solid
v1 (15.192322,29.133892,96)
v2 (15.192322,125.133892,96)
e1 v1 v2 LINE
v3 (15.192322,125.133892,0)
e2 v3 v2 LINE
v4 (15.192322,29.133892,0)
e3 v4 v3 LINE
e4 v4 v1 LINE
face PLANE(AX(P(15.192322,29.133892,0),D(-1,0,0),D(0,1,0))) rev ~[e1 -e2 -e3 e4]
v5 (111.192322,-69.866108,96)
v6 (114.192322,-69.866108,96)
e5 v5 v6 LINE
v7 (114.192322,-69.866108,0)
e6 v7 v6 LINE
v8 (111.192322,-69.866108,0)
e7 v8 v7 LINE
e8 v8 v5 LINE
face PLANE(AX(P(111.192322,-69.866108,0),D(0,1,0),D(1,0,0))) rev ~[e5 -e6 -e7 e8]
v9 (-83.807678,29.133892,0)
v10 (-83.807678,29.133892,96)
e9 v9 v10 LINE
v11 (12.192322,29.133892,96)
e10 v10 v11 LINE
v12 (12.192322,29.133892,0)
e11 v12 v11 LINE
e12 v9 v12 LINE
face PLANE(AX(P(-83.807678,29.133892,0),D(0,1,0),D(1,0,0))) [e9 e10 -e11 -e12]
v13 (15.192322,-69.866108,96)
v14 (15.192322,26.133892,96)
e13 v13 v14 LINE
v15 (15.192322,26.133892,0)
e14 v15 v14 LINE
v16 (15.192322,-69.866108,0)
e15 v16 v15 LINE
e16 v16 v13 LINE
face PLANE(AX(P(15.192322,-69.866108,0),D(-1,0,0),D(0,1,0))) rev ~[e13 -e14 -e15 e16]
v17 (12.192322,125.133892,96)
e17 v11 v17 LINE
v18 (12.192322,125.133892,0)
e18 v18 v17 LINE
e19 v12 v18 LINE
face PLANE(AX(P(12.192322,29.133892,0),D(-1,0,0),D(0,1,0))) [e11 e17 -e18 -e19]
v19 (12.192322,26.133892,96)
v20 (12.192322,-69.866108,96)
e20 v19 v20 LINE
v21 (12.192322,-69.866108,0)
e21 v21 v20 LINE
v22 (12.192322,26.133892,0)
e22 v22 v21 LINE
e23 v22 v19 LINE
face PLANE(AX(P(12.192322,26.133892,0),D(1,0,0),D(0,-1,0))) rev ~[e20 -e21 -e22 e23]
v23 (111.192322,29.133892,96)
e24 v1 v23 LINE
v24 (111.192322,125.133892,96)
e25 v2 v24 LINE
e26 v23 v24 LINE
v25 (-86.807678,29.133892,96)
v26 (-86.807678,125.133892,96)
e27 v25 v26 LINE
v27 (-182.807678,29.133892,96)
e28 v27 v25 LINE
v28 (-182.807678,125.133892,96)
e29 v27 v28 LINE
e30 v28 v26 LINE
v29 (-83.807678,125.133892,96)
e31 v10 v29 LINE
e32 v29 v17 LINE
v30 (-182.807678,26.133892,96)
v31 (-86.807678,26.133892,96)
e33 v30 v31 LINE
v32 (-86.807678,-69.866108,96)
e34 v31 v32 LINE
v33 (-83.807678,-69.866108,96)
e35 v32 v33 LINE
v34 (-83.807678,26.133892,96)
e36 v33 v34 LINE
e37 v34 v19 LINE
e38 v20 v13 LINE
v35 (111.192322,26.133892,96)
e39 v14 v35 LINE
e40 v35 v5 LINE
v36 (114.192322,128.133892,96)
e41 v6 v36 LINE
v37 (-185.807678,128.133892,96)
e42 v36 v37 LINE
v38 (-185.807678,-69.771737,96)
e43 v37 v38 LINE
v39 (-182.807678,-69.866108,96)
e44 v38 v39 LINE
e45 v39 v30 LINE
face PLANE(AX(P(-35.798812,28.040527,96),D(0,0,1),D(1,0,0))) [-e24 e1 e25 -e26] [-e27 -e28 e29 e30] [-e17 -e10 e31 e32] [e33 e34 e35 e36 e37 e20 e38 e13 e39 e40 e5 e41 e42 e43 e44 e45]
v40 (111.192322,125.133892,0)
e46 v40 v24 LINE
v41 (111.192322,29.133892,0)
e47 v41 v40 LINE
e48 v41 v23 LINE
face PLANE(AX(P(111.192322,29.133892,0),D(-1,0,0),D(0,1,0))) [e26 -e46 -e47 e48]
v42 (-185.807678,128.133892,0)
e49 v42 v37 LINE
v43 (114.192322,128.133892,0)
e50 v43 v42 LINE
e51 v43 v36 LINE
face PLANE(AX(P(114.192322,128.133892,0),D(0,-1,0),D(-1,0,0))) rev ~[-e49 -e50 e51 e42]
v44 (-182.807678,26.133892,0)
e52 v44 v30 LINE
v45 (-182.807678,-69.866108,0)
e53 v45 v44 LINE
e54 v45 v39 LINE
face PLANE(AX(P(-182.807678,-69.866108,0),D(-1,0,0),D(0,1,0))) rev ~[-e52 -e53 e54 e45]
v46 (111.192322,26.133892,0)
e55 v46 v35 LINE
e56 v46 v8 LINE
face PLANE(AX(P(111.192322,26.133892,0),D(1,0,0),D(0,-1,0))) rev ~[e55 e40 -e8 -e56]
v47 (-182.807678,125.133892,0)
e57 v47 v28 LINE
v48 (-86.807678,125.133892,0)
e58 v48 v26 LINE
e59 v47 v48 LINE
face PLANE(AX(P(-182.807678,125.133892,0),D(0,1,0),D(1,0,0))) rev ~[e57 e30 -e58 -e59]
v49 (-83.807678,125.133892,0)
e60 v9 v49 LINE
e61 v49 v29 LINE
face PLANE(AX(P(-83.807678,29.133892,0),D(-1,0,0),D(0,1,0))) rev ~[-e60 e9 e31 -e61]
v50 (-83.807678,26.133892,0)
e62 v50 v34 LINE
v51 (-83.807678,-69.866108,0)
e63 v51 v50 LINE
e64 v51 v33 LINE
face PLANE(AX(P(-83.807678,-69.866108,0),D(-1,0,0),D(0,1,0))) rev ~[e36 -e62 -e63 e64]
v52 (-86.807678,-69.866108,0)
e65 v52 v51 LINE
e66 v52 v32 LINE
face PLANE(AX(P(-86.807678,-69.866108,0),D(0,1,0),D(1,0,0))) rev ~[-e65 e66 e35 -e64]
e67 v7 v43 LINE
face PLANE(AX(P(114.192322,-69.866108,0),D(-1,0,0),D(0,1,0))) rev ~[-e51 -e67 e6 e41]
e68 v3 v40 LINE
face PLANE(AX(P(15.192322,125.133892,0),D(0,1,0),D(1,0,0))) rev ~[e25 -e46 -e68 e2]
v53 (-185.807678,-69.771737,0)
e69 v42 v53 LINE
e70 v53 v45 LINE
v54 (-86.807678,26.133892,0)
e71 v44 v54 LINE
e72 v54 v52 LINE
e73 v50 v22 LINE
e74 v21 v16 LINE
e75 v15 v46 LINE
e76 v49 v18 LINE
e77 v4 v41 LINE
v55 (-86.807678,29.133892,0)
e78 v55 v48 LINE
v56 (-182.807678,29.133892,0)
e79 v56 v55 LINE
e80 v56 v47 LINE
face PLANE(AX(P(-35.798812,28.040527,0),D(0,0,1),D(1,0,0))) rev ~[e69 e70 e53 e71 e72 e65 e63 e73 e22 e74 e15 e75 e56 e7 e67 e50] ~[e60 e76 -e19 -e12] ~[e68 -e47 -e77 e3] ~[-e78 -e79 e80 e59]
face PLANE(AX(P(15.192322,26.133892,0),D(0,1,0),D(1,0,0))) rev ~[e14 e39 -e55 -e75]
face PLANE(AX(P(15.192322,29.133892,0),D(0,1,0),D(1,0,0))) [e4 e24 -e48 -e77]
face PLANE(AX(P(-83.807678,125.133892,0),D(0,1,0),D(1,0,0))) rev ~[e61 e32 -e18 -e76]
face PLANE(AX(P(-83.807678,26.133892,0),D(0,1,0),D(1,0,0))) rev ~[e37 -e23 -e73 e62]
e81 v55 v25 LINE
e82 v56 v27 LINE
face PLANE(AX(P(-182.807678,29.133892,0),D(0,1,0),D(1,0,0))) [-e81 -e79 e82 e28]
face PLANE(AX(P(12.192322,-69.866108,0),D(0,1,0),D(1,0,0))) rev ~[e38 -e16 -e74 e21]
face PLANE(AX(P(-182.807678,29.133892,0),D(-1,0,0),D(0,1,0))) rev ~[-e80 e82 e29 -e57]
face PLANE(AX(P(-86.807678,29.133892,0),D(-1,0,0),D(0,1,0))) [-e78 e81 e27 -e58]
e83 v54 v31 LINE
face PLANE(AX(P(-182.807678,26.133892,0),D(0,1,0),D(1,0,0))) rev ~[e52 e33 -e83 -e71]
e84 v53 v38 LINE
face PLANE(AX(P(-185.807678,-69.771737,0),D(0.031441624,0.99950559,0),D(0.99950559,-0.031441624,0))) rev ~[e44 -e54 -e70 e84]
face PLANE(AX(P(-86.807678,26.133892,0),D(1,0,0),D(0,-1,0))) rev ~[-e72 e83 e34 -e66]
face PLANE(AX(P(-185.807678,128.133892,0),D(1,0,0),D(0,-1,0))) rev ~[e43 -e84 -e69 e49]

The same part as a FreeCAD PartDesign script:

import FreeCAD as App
import Part
import Sketcher
Q = App.Units.Quantity

doc = App.newDocument("Part")
params = doc.addObject("Spreadsheet::Sheet", "Params")
for row, (alias, value) in enumerate([
    ("sketch1_width", "96 mm"),
    ("sketch1_width2", "3 mm"),
    ("sketch1_width3", "300 mm"),
    ("sketch1_height", "198 mm"),
    ("pad1_length", "96 mm"),
], start=1):
    params.set(f"A{row}", alias)
    params.set(f"B{row}", "=" + value)
    params.setAlias(f"B{row}", alias)

body = doc.addObject("PartDesign::Body", "Body")

sketch1 = body.newObject("Sketcher::SketchObject", "Sketch")
sketch1.AttachmentSupport = (doc.getObject("XY_Plane"), [""])
sketch1.MapMode = "FlatFace"
sketch1.addGeometry(Part.LineSegment(App.Vector(-182.807678, -69.866108, 0), App.Vector(-182.807678, 26.133892, 0)), False)
sketch1.addGeometry(Part.LineSegment(App.Vector(-182.807678, 26.133892, 0), App.Vector(-86.807678, 26.133892, 0)), False)
sketch1.addGeometry(Part.LineSegment(App.Vector(-86.807678, 26.133892, 0), App.Vector(-86.807678, -69.866108, 0)), False)
sketch1.addGeometry(Part.LineSegment(App.Vector(-86.807678, -69.866108, 0), App.Vector(-83.807678, -69.866108, 0)), False)
sketch1.addGeometry(Part.LineSegment(App.Vector(-83.807678, -69.866108, 0), App.Vector(-83.807678, 26.133892, 0)), False)
sketch1.addGeometry(Part.LineSegment(App.Vector(-83.807678, 26.133892, 0), App.Vector(12.192322, 26.133892, 0)), False)
sketch1.addGeometry(Part.LineSegment(App.Vector(12.192322, 26.133892, 0), App.Vector(12.192322, -69.866108, 0)), False)
sketch1.addGeometry(Part.LineSegment(App.Vector(12.192322, -69.866108, 0), App.Vector(15.192322, -69.866108, 0)), False)
sketch1.addGeometry(Part.LineSegment(App.Vector(15.192322, -69.866108, 0), App.Vector(15.192322, 26.133892, 0)), False)
sketch1.addGeometry(Part.LineSegment(App.Vector(15.192322, 26.133892, 0), App.Vector(111.192322, 26.133892, 0)), False)
sketch1.addGeometry(Part.LineSegment(App.Vector(111.192322, 26.133892, 0), App.Vector(111.192322, -69.866108, 0)), False)
sketch1.addGeometry(Part.LineSegment(App.Vector(111.192322, -69.866108, 0), App.Vector(114.192322, -69.866108, 0)), False)
sketch1.addGeometry(Part.LineSegment(App.Vector(114.192322, -69.866108, 0), App.Vector(114.192322, 128.133892, 0)), False)
sketch1.addGeometry(Part.LineSegment(App.Vector(114.192322, 128.133892, 0), App.Vector(-185.807678, 128.133892, 0)), False)
sketch1.addGeometry(Part.LineSegment(App.Vector(-185.807678, 128.133892, 0), App.Vector(-185.807678, -69.771737, 0)), False)
sketch1.addGeometry(Part.LineSegment(App.Vector(-185.807678, -69.771737, 0), App.Vector(-182.807678, -69.866108, 0)), False)
sketch1.addGeometry(Part.LineSegment(App.Vector(-86.807678, 29.133892, 0), App.Vector(-182.807678, 29.133892, 0)), False)
sketch1.addGeometry(Part.LineSegment(App.Vector(-182.807678, 29.133892, 0), App.Vector(-182.807678, 125.133892, 0)), False)
sketch1.addGeometry(Part.LineSegment(App.Vector(-182.807678, 125.133892, 0), App.Vector(-86.807678, 125.133892, 0)), False)
sketch1.addGeometry(Part.LineSegment(App.Vector(-86.807678, 125.133892, 0), App.Vector(-86.807678, 29.133892, 0)), False)
sketch1.addGeometry(Part.LineSegment(App.Vector(12.192322, 29.133892, 0), App.Vector(-83.807678, 29.133892, 0)), False)
sketch1.addGeometry(Part.LineSegment(App.Vector(-83.807678, 29.133892, 0), App.Vector(-83.807678, 125.133892, 0)), False)
sketch1.addGeometry(Part.LineSegment(App.Vector(-83.807678, 125.133892, 0), App.Vector(12.192322, 125.133892, 0)), False)
sketch1.addGeometry(Part.LineSegment(App.Vector(12.192322, 125.133892, 0), App.Vector(12.192322, 29.133892, 0)), False)
sketch1.addGeometry(Part.LineSegment(App.Vector(111.192322, 29.133892, 0), App.Vector(15.192322, 29.133892, 0)), False)
sketch1.addGeometry(Part.LineSegment(App.Vector(15.192322, 29.133892, 0), App.Vector(15.192322, 125.133892, 0)), False)
sketch1.addGeometry(Part.LineSegment(App.Vector(15.192322, 125.133892, 0), App.Vector(111.192322, 125.133892, 0)), False)
sketch1.addGeometry(Part.LineSegment(App.Vector(111.192322, 125.133892, 0), App.Vector(111.192322, 29.133892, 0)), False)
sketch1.addConstraint(Sketcher.Constraint("Coincident", 0, 2, 1, 1))
sketch1.addConstraint(Sketcher.Constraint("Coincident", 1, 2, 2, 1))
sketch1.addConstraint(Sketcher.Constraint("Coincident", 2, 2, 3, 1))
sketch1.addConstraint(Sketcher.Constraint("Coincident", 3, 2, 4, 1))
sketch1.addConstraint(Sketcher.Constraint("Coincident", 4, 2, 5, 1))
sketch1.addConstraint(Sketcher.Constraint("Coincident", 5, 2, 6, 1))
sketch1.addConstraint(Sketcher.Constraint("Coincident", 6, 2, 7, 1))
sketch1.addConstraint(Sketcher.Constraint("Coincident", 7, 2, 8, 1))
sketch1.addConstraint(Sketcher.Constraint("Coincident", 8, 2, 9, 1))
sketch1.addConstraint(Sketcher.Constraint("Coincident", 9, 2, 10, 1))
sketch1.addConstraint(Sketcher.Constraint("Coincident", 10, 2, 11, 1))
sketch1.addConstraint(Sketcher.Constraint("Coincident", 11, 2, 12, 1))
sketch1.addConstraint(Sketcher.Constraint("Coincident", 12, 2, 13, 1))
sketch1.addConstraint(Sketcher.Constraint("Coincident", 13, 2, 14, 1))
sketch1.addConstraint(Sketcher.Constraint("Coincident", 14, 2, 15, 1))
sketch1.addConstraint(Sketcher.Constraint("Coincident", 15, 2, 0, 1))
sketch1.addConstraint(Sketcher.Constraint("Coincident", 16, 2, 17, 1))
sketch1.addConstraint(Sketcher.Constraint("Coincident", 17, 2, 18, 1))
sketch1.addConstraint(Sketcher.Constraint("Coincident", 18, 2, 19, 1))
sketch1.addConstraint(Sketcher.Constraint("Coincident", 19, 2, 16, 1))
sketch1.addConstraint(Sketcher.Constraint("Coincident", 20, 2, 21, 1))
sketch1.addConstraint(Sketcher.Constraint("Coincident", 21, 2, 22, 1))
sketch1.addConstraint(Sketcher.Constraint("Coincident", 22, 2, 23, 1))
sketch1.addConstraint(Sketcher.Constraint("Coincident", 23, 2, 20, 1))
sketch1.addConstraint(Sketcher.Constraint("Coincident", 24, 2, 25, 1))
sketch1.addConstraint(Sketcher.Constraint("Coincident", 25, 2, 26, 1))
sketch1.addConstraint(Sketcher.Constraint("Coincident", 26, 2, 27, 1))
sketch1.addConstraint(Sketcher.Constraint("Coincident", 27, 2, 24, 1))
sketch1.addConstraint(Sketcher.Constraint("Vertical", 0))
sketch1.addConstraint(Sketcher.Constraint("Horizontal", 1))
sketch1.addConstraint(Sketcher.Constraint("Vertical", 2))
sketch1.addConstraint(Sketcher.Constraint("Horizontal", 3))
sketch1.addConstraint(Sketcher.Constraint("Vertical", 4))
sketch1.addConstraint(Sketcher.Constraint("Horizontal", 5))
sketch1.addConstraint(Sketcher.Constraint("Vertical", 6))
sketch1.addConstraint(Sketcher.Constraint("Horizontal", 7))
sketch1.addConstraint(Sketcher.Constraint("Vertical", 8))
sketch1.addConstraint(Sketcher.Constraint("Horizontal", 9))
sketch1.addConstraint(Sketcher.Constraint("Vertical", 10))
sketch1.addConstraint(Sketcher.Constraint("Horizontal", 11))
sketch1.addConstraint(Sketcher.Constraint("Vertical", 12))
sketch1.addConstraint(Sketcher.Constraint("Horizontal", 13))
sketch1.addConstraint(Sketcher.Constraint("Vertical", 14))
sketch1.addConstraint(Sketcher.Constraint("Horizontal", 16))
sketch1.addConstraint(Sketcher.Constraint("Vertical", 17))
sketch1.addConstraint(Sketcher.Constraint("Horizontal", 18))
sketch1.addConstraint(Sketcher.Constraint("Vertical", 19))
sketch1.addConstraint(Sketcher.Constraint("Horizontal", 20))
sketch1.addConstraint(Sketcher.Constraint("Vertical", 21))
sketch1.addConstraint(Sketcher.Constraint("Horizontal", 22))
sketch1.addConstraint(Sketcher.Constraint("Vertical", 23))
sketch1.addConstraint(Sketcher.Constraint("Horizontal", 24))
sketch1.addConstraint(Sketcher.Constraint("Vertical", 25))
sketch1.addConstraint(Sketcher.Constraint("Horizontal", 26))
sketch1.addConstraint(Sketcher.Constraint("Vertical", 27))
sketch1.addConstraint(Sketcher.Constraint("Horizontal", 1, 2, 4, 2))
sketch1.addConstraint(Sketcher.Constraint("Horizontal", 3, 2, 6, 2))
sketch1.addConstraint(Sketcher.Constraint("Horizontal", 5, 2, 8, 2))
sketch1.addConstraint(Sketcher.Constraint("Horizontal", 7, 2, 10, 2))
sketch1.addConstraint(Sketcher.Constraint("Horizontal", 11, 2, 15, 2))
sketch1.addConstraint(Sketcher.Constraint("Horizontal", 19, 2, 20, 2))
sketch1.addConstraint(Sketcher.Constraint("Horizontal", 18, 2, 21, 2))
sketch1.addConstraint(Sketcher.Constraint("Horizontal", 23, 2, 24, 2))
sketch1.addConstraint(Sketcher.Constraint("Horizontal", 22, 2, 25, 2))
sketch1.addConstraint(Sketcher.Constraint("Vertical", 15, 2, 16, 2))
sketch1.addConstraint(Sketcher.Constraint("Vertical", 2, 2, 18, 2))
sketch1.addConstraint(Sketcher.Constraint("Vertical", 4, 2, 20, 2))
sketch1.addConstraint(Sketcher.Constraint("Vertical", 6, 2, 22, 2))
sketch1.addConstraint(Sketcher.Constraint("Vertical", 8, 2, 24, 2))
sketch1.addConstraint(Sketcher.Constraint("Vertical", 10, 2, 26, 2))
sketch1.addConstraint(Sketcher.Constraint("Equal", 1, 5))
sketch1.addConstraint(Sketcher.Constraint("Equal", 3, 7))
sketch1.addConstraint(Sketcher.Constraint("Equal", 5, 9))
sketch1.addConstraint(Sketcher.Constraint("Equal", 7, 11))
sketch1.addConstraint(Sketcher.Constraint("Equal", 26, 0))
sketch1.addConstraint(Sketcher.Constraint("Equal", 10, 17))
sketch1.addConstraint(Sketcher.Constraint("DistanceX", 1, 1, 1, 2, Q("96 mm")))
sketch1.addConstraint(Sketcher.Constraint("DistanceX", 3, 1, 3, 2, Q("3 mm")))
sketch1.addConstraint(Sketcher.Constraint("DistanceX", 13, 2, 13, 1, Q("300 mm")))
sketch1.addConstraint(Sketcher.Constraint("DistanceY", 12, 1, 12, 2, Q("198 mm")))
sketch1.addConstraint(Sketcher.Constraint("DistanceY", 0, 2, 16, 2, Q("3 mm")))
sketch1.addConstraint(Sketcher.Constraint("DistanceY", 14, 2, 14, 1, Q("197.905628 mm")))
sketch1.addConstraint(Sketcher.Constraint("DistanceY", -1, 1, 0, 2, Q("26.133892 mm")))
sketch1.addConstraint(Sketcher.Constraint("DistanceX", 0, 2, -1, 1, Q("182.807678 mm")))
sketch1.setExpression("Constraints[76]", "Params.sketch1_width")
sketch1.setExpression("Constraints[77]", "Params.sketch1_width2")
sketch1.setExpression("Constraints[78]", "Params.sketch1_width3")
sketch1.setExpression("Constraints[79]", "Params.sketch1_height")
pad1 = body.newObject("PartDesign::Pad", "Pad")
pad1.Profile = sketch1
pad1.setExpression("Length", "Params.pad1_length")

doc.recompute()
